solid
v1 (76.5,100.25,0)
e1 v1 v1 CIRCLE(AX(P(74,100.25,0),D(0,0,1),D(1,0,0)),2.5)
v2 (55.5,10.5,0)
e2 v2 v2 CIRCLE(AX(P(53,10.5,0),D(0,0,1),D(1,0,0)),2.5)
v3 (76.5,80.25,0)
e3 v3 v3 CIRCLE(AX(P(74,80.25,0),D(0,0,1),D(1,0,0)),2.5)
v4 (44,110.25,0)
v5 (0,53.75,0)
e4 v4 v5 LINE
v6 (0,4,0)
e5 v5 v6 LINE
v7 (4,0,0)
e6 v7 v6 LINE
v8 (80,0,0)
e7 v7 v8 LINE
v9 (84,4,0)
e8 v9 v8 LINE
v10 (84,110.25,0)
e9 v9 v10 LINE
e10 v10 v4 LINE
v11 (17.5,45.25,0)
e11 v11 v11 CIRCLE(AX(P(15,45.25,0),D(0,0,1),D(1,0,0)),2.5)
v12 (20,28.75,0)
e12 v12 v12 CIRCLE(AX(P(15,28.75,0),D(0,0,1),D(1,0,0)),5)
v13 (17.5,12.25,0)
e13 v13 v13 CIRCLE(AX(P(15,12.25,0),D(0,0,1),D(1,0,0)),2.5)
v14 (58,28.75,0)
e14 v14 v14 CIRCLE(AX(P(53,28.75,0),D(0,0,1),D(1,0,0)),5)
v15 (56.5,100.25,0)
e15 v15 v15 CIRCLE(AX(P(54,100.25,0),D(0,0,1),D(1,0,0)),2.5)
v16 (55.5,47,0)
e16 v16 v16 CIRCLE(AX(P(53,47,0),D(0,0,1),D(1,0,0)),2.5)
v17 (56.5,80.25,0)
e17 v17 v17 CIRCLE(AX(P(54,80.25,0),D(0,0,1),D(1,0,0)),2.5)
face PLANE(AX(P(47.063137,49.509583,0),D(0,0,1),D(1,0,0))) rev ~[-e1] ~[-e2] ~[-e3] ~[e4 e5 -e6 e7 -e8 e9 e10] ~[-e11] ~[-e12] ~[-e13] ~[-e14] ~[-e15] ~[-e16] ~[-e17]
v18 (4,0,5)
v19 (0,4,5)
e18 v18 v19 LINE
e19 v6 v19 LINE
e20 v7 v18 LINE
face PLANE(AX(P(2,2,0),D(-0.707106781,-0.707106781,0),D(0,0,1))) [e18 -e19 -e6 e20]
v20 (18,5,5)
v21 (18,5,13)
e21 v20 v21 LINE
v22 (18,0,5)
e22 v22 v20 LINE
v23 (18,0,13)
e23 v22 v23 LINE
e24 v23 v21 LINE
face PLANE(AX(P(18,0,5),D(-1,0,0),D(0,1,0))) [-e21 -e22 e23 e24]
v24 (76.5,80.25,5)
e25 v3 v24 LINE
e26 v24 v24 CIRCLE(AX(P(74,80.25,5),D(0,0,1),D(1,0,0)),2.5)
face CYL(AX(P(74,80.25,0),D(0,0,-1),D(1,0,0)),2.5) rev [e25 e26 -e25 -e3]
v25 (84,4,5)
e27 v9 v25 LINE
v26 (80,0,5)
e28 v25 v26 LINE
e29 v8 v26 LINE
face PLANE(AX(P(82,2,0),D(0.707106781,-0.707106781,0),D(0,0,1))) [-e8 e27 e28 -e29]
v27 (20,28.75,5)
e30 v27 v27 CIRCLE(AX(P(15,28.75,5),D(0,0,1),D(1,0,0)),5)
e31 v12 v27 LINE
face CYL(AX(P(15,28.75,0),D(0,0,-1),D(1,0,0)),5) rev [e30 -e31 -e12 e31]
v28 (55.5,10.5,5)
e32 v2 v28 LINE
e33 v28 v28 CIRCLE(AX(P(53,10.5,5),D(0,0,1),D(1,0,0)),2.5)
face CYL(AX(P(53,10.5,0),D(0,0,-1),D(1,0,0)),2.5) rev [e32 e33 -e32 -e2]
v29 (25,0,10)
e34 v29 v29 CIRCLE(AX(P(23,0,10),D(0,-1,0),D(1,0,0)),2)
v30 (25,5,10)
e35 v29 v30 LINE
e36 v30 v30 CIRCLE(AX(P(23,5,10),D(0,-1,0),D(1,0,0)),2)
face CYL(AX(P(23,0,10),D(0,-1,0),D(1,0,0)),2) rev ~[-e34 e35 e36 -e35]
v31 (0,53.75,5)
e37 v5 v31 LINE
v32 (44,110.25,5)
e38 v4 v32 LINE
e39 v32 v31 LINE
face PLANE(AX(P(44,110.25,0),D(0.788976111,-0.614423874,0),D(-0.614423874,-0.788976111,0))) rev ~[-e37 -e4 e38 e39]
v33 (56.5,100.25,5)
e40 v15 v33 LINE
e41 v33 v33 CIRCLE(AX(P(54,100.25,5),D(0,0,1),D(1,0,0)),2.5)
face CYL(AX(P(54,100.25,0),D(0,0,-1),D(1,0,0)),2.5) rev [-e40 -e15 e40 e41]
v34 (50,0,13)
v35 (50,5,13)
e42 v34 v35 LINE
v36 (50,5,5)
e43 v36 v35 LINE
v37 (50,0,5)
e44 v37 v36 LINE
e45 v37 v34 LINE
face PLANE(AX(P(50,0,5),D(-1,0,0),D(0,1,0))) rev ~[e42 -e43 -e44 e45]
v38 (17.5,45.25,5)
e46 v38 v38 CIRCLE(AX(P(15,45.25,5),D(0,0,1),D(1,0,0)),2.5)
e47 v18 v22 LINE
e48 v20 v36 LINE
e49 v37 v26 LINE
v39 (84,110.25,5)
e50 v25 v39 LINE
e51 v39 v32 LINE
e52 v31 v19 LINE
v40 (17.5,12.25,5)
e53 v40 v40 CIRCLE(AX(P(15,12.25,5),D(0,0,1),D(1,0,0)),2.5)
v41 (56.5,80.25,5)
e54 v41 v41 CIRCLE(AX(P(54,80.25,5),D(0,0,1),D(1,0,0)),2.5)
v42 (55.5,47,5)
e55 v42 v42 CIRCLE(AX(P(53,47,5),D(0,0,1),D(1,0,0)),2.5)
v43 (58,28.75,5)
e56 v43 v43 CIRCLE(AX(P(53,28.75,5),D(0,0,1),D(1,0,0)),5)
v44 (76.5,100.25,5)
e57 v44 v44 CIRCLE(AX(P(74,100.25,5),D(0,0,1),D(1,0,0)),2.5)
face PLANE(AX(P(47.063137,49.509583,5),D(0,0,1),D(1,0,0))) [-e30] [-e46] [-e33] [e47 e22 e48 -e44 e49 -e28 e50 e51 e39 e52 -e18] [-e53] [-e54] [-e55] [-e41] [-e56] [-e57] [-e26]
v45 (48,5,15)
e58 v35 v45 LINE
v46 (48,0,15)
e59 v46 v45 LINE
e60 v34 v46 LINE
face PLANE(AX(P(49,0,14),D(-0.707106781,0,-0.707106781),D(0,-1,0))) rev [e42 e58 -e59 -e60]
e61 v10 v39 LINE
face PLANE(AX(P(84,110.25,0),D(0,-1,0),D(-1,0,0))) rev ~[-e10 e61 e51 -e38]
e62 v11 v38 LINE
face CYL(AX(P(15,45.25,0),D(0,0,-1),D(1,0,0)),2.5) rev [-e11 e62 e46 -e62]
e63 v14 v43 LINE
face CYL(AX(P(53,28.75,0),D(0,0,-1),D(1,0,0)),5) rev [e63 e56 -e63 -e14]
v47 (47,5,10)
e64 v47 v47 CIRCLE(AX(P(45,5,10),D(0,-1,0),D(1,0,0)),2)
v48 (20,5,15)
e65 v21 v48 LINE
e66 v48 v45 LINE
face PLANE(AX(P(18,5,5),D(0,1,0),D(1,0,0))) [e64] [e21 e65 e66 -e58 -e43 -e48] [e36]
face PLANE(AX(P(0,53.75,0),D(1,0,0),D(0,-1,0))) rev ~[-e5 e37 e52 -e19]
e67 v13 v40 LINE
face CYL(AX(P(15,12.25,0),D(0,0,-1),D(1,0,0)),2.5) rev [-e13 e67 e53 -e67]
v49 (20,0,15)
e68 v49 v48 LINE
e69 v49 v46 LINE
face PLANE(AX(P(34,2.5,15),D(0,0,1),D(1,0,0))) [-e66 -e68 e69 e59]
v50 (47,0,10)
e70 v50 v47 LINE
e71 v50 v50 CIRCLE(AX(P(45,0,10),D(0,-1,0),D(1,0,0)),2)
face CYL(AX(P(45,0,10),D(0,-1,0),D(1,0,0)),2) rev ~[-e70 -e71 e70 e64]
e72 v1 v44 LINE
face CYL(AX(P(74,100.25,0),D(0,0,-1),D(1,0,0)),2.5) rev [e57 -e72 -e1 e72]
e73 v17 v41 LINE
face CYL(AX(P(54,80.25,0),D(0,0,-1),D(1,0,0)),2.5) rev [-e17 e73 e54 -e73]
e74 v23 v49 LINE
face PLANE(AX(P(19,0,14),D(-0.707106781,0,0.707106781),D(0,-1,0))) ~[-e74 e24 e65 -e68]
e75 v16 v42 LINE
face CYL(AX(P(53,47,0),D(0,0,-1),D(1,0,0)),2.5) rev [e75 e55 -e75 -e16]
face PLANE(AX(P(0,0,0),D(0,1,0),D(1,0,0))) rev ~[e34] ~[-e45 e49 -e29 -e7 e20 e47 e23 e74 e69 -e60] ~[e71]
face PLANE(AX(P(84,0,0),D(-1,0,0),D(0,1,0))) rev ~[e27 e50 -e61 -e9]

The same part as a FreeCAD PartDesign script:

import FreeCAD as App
import Part
import Sketcher

V = App.Vector
Q = App.Units.Quantity


def edges_at(feature, points):
    """Names of the edges that pass closest to the given points."""
    edges = feature.Shape.Edges
    near = lambda p: min(range(len(edges)), key=lambda i: edges[i].distToShape(Part.Vertex(*p))[0])
    return sorted({f"Edge{near(p) + 1}" for p in points})

doc = App.newDocument("Part")
body = doc.addObject("PartDesign::Body", "Body")

# Sketch on XY plane
sketch1 = doc.addObject("Sketcher::SketchObject", "Sketch")
body.addObject(sketch1)
sketch1.AttachmentSupport = (doc.XY_Plane, [""])
sketch1.MapMode = "FlatFace"
sketch1.addGeometry([
    Part.LineSegment(V(84, 110.25, 0), V(44, 110.25, 0)),  # 0
    Part.LineSegment(V(44, 110.25, 0), V(0, 53.75, 0)),  # 1
    Part.LineSegment(V(0, 53.75, 0), V(0, 0, 0)),  # 2
    Part.LineSegment(V(0, 0, 0), V(84, 0, 0)),  # 3
    Part.LineSegment(V(84, 0, 0), V(84, 110.25, 0)),  # 4
    Part.Circle(V(15, 12.25, 0), V(0, 0, 1), 2.5),  # 5
    Part.Circle(V(15, 28.75, 0), V(0, 0, 1), 5),  # 6
    Part.Circle(V(15, 45.25, 0), V(0, 0, 1), 2.5),  # 7
    Part.Circle(V(53, 10.5, 0), V(0, 0, 1), 2.5),  # 8
    Part.Circle(V(53, 28.75, 0), V(0, 0, 1), 5),  # 9
    Part.Circle(V(53, 47, 0), V(0, 0, 1), 2.5),  # 10
    Part.Circle(V(54, 80.25, 0), V(0, 0, 1), 2.5),  # 11
    Part.Circle(V(54, 100.25, 0), V(0, 0, 1), 2.5),  # 12
    Part.Circle(V(74, 80.25, 0), V(0, 0, 1), 2.5),  # 13
    Part.Circle(V(74, 100.25, 0), V(0, 0, 1), 2.5),  # 14
], False)
sketch1.addConstraint([
    Sketcher.Constraint("Coincident", 0, 2, 1, 1),
    Sketcher.Constraint("Coincident", 1, 2, 2, 1),
    Sketcher.Constraint("Coincident", 2, 2, 3, 1),
    Sketcher.Constraint("Coincident", 3, 2, 4, 1),
    Sketcher.Constraint("Coincident", 4, 2, 0, 1),
    Sketcher.Constraint("Horizontal", 0),
    Sketcher.Constraint("Vertical", 2),
    Sketcher.Constraint("Horizontal", 3),
    Sketcher.Constraint("Vertical", 4),
    Sketcher.Constraint("Coincident", 2, 2, -1, 1),
    Sketcher.Constraint("Equal", 5, 7),
    Sketcher.Constraint("Equal", 7, 8),
    Sketcher.Constraint("Equal", 6, 9),
    Sketcher.Constraint("Equal", 8, 10),
    Sketcher.Constraint("Equal", 10, 11),
    Sketcher.Constraint("Equal", 11, 12),
    Sketcher.Constraint("Equal", 12, 13),
    Sketcher.Constraint("Equal", 13, 14),
    Sketcher.Constraint("Horizontal", 6, 3, 9, 3),
    Sketcher.Constraint("Horizontal", 11, 3, 13, 3),
    Sketcher.Constraint("Horizontal", 12, 3, 14, 3),
    Sketcher.Constraint("Vertical", 5, 3, 6, 3),
    Sketcher.Constraint("Vertical", 6, 3, 7, 3),
    Sketcher.Constraint("Vertical", 8, 3, 9, 3),
    Sketcher.Constraint("Vertical", 9, 3, 10, 3),
    Sketcher.Constraint("Vertical", 11, 3, 12, 3),
    Sketcher.Constraint("Vertical", 13, 3, 14, 3),
    Sketcher.Constraint("Diameter", 5, Q("5 mm")),
    Sketcher.Constraint("Diameter", 6, Q("10 mm")),
    Sketcher.Constraint("DistanceX", 0, 2, 0, 1, Q("40 mm")),
    Sketcher.Constraint("DistanceX", 3, 1, 3, 2, Q("84 mm")),
    Sketcher.Constraint("DistanceX", -1, 1, 5, 3, Q("15 mm")),
    Sketcher.Constraint("DistanceX", -1, 1, 8, 3, Q("53 mm")),
    Sketcher.Constraint("DistanceY", -1, 1, 10, 3, Q("47 mm")),
    Sketcher.Constraint("DistanceX", -1, 1, 11, 3, Q("54 mm")),
    Sketcher.Constraint("DistanceX", -1, 1, 13, 3, Q("74 mm")),
    Sketcher.Constraint("DistanceY", 5, 3, 7, 3, Q("33 mm")),
    Sketcher.Constraint("DistanceY", 7, 3, 11, 3, Q("35 mm")),
    Sketcher.Constraint("DistanceY", 11, 3, 12, 3, Q("20 mm")),
    Sketcher.Constraint("DistanceY", 12, 3, 0, 2, Q("10 mm")),
    Sketcher.Constraint("DistanceY", 6, 3, 1, 2, Q("25 mm")),
    Sketcher.Constraint("DistanceY", 2, 2, 2, 1, Q("53.75 mm")),
    Sketcher.Constraint("DistanceY", 4, 1, 4, 2, Q("110.25 mm")),
    Sketcher.Constraint("DistanceY", -1, 1, 8, 3, Q("10.5 mm")),
])
pad1 = doc.addObject("PartDesign::Pad", "Pad")
body.addObject(pad1)
pad1.Profile = sketch1
pad1.Length = 5
doc.recompute()

chamfer = doc.addObject("PartDesign::Chamfer", "Chamfer")
body.addObject(chamfer)
chamfer.Base = (pad1, edges_at(pad1, [(0, 0, 2.5), (84, 0, 2.5)]))
chamfer.Size = 4

# Sketch on XY plane
sketch2 = doc.addObject("Sketcher::SketchObject", "Sketch001")
body.addObject(sketch2)
sketch2.AttachmentSupport = (doc.XY_Plane, [""])
sketch2.MapMode = "FlatFace"
sketch2.AttachmentOffset = App.Placement(V(0, 0, 5), App.Rotation())
sketch2.addGeometry([
    Part.LineSegment(V(18, 5, 0), V(18, 0, 0)),
    Part.LineSegment(V(18, 0, 0), V(50, 0, 0)),
    Part.LineSegment(V(50, 0, 0), V(50, 5, 0)),
    Part.LineSegment(V(50, 5, 0), V(18, 5, 0)),
], False)
sketch2.addConstraint([
    Sketcher.Constraint("Coincident", 0, 2, 1, 1),
    Sketcher.Constraint("Coincident", 1, 2, 2, 1),
    Sketcher.Constraint("Coincident", 2, 2, 3, 1),
    Sketcher.Constraint("Coincident", 3, 2, 0, 1),
    Sketcher.Constraint("Vertical", 0),
    Sketcher.Constraint("Horizontal", 1),
    Sketcher.Constraint("Vertical", 2),
    Sketcher.Constraint("Horizontal", 3),
    Sketcher.Constraint("PointOnObject", 0, 2, -1),
    Sketcher.Constraint("DistanceX", 1, 1, 1, 2, Q("32 mm")),
    Sketcher.Constraint("DistanceY", 0, 2, 0, 1, Q("5 mm")),
    Sketcher.Constraint("DistanceX", -1, 1, 0, 2, Q("18 mm")),
])
pad2 = doc.addObject("PartDesign::Pad", "Pad001")
body.addObject(pad2)
pad2.Profile = sketch2
pad2.Length = 10

# Sketch on XZ plane
sketch3 = doc.addObject("Sketcher::SketchObject", "Sketch002")
body.addObject(sketch3)
sketch3.AttachmentSupport = (doc.XZ_Plane, [""])
sketch3.MapMode = "FlatFace"
sketch3.addGeometry([
    Part.Circle(V(23, 10, 0), V(0, 0, 1), 2),
    Part.Circle(V(45, 10, 0), V(0, 0, 1), 2),
], False)
sketch3.addConstraint([
    Sketcher.Constraint("Equal", 0, 1),
    Sketcher.Constraint("Horizontal", 0, 3, 1, 3),
    Sketcher.Constraint("Diameter", 0, Q("4 mm")),
    Sketcher.Constraint("DistanceX", -1, 1, 0, 3, Q("23 mm")),
    Sketcher.Constraint("DistanceY", -1, 1, 0, 3, Q("10 mm")),
    Sketcher.Constraint("DistanceX", -1, 1, 1, 3, Q("45 mm")),
])
pocket1 = doc.addObject("PartDesign::Pocket", "Pocket")
body.addObject(pocket1)
pocket1.Profile = sketch3
pocket1.Type = "ThroughAll"
doc.recompute()

chamfer2 = doc.addObject("PartDesign::Chamfer", "Chamfer001")
body.addObject(chamfer2)
chamfer2.Base = (pocket1, edges_at(pocket1, [(18, 2.5, 15), (50, 2.5, 15)]))
chamfer2.Size = 2

doc.recompute()
